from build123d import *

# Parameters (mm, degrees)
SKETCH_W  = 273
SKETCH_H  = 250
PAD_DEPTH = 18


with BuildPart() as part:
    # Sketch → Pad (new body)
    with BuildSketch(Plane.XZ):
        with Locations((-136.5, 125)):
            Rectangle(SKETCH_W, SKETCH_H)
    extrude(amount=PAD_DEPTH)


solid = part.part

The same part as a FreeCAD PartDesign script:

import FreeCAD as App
import Part
import Sketcher
from FreeCAD import Vector

doc = App.newDocument("Part")
body = doc.addObject("PartDesign::Body", "Body")

# Sketch on XZ plane
sketch1 = doc.addObject("Sketcher::SketchObject", "Sketch")
body.addObject(sketch1)
sketch1.AttachmentSupport = (doc.XZ_Plane, [""])
sketch1.MapMode = "FlatFace"
sketch1.addGeometry([
    Part.LineSegment(Vector(-273, 250, 0), Vector(-273, 0, 0)),
    Part.LineSegment(Vector(-273, 0, 0), Vector(0, 0, 0)),
    Part.LineSegment(Vector(0, 0, 0), Vector(0, 250, 0)),
    Part.LineSegment(Vector(0, 250, 0), Vector(-273, 250, 0)),
], False)
sketch1.addConstraint([
    Sketcher.Constraint("Coincident", 0, 2, 1, 1),
    Sketcher.Constraint("Coincident", 1, 2, 2, 1),
    Sketcher.Constraint("Coincident", 2, 2, 3, 1),
    Sketcher.Constraint("Coincident", 3, 2, 0, 1),
    Sketcher.Constraint("Vertical", 0),
    Sketcher.Constraint("Horizontal", 1),
    Sketcher.Constraint("Vertical", 2),
    Sketcher.Constraint("Horizontal", 3),
    Sketcher.Constraint("Coincident", 1, 2, -1, 1),
    Sketcher.Constraint("DistanceX", 1, 1, 1, 2, 273.0),
    Sketcher.Constraint("DistanceY", 0, 2, 0, 1, 250.0),
])
pad1 = doc.addObject("PartDesign::Pad", "Pad")
body.addObject(pad1)
pad1.Profile = sketch1
pad1.Length = 18

doc.recompute()
